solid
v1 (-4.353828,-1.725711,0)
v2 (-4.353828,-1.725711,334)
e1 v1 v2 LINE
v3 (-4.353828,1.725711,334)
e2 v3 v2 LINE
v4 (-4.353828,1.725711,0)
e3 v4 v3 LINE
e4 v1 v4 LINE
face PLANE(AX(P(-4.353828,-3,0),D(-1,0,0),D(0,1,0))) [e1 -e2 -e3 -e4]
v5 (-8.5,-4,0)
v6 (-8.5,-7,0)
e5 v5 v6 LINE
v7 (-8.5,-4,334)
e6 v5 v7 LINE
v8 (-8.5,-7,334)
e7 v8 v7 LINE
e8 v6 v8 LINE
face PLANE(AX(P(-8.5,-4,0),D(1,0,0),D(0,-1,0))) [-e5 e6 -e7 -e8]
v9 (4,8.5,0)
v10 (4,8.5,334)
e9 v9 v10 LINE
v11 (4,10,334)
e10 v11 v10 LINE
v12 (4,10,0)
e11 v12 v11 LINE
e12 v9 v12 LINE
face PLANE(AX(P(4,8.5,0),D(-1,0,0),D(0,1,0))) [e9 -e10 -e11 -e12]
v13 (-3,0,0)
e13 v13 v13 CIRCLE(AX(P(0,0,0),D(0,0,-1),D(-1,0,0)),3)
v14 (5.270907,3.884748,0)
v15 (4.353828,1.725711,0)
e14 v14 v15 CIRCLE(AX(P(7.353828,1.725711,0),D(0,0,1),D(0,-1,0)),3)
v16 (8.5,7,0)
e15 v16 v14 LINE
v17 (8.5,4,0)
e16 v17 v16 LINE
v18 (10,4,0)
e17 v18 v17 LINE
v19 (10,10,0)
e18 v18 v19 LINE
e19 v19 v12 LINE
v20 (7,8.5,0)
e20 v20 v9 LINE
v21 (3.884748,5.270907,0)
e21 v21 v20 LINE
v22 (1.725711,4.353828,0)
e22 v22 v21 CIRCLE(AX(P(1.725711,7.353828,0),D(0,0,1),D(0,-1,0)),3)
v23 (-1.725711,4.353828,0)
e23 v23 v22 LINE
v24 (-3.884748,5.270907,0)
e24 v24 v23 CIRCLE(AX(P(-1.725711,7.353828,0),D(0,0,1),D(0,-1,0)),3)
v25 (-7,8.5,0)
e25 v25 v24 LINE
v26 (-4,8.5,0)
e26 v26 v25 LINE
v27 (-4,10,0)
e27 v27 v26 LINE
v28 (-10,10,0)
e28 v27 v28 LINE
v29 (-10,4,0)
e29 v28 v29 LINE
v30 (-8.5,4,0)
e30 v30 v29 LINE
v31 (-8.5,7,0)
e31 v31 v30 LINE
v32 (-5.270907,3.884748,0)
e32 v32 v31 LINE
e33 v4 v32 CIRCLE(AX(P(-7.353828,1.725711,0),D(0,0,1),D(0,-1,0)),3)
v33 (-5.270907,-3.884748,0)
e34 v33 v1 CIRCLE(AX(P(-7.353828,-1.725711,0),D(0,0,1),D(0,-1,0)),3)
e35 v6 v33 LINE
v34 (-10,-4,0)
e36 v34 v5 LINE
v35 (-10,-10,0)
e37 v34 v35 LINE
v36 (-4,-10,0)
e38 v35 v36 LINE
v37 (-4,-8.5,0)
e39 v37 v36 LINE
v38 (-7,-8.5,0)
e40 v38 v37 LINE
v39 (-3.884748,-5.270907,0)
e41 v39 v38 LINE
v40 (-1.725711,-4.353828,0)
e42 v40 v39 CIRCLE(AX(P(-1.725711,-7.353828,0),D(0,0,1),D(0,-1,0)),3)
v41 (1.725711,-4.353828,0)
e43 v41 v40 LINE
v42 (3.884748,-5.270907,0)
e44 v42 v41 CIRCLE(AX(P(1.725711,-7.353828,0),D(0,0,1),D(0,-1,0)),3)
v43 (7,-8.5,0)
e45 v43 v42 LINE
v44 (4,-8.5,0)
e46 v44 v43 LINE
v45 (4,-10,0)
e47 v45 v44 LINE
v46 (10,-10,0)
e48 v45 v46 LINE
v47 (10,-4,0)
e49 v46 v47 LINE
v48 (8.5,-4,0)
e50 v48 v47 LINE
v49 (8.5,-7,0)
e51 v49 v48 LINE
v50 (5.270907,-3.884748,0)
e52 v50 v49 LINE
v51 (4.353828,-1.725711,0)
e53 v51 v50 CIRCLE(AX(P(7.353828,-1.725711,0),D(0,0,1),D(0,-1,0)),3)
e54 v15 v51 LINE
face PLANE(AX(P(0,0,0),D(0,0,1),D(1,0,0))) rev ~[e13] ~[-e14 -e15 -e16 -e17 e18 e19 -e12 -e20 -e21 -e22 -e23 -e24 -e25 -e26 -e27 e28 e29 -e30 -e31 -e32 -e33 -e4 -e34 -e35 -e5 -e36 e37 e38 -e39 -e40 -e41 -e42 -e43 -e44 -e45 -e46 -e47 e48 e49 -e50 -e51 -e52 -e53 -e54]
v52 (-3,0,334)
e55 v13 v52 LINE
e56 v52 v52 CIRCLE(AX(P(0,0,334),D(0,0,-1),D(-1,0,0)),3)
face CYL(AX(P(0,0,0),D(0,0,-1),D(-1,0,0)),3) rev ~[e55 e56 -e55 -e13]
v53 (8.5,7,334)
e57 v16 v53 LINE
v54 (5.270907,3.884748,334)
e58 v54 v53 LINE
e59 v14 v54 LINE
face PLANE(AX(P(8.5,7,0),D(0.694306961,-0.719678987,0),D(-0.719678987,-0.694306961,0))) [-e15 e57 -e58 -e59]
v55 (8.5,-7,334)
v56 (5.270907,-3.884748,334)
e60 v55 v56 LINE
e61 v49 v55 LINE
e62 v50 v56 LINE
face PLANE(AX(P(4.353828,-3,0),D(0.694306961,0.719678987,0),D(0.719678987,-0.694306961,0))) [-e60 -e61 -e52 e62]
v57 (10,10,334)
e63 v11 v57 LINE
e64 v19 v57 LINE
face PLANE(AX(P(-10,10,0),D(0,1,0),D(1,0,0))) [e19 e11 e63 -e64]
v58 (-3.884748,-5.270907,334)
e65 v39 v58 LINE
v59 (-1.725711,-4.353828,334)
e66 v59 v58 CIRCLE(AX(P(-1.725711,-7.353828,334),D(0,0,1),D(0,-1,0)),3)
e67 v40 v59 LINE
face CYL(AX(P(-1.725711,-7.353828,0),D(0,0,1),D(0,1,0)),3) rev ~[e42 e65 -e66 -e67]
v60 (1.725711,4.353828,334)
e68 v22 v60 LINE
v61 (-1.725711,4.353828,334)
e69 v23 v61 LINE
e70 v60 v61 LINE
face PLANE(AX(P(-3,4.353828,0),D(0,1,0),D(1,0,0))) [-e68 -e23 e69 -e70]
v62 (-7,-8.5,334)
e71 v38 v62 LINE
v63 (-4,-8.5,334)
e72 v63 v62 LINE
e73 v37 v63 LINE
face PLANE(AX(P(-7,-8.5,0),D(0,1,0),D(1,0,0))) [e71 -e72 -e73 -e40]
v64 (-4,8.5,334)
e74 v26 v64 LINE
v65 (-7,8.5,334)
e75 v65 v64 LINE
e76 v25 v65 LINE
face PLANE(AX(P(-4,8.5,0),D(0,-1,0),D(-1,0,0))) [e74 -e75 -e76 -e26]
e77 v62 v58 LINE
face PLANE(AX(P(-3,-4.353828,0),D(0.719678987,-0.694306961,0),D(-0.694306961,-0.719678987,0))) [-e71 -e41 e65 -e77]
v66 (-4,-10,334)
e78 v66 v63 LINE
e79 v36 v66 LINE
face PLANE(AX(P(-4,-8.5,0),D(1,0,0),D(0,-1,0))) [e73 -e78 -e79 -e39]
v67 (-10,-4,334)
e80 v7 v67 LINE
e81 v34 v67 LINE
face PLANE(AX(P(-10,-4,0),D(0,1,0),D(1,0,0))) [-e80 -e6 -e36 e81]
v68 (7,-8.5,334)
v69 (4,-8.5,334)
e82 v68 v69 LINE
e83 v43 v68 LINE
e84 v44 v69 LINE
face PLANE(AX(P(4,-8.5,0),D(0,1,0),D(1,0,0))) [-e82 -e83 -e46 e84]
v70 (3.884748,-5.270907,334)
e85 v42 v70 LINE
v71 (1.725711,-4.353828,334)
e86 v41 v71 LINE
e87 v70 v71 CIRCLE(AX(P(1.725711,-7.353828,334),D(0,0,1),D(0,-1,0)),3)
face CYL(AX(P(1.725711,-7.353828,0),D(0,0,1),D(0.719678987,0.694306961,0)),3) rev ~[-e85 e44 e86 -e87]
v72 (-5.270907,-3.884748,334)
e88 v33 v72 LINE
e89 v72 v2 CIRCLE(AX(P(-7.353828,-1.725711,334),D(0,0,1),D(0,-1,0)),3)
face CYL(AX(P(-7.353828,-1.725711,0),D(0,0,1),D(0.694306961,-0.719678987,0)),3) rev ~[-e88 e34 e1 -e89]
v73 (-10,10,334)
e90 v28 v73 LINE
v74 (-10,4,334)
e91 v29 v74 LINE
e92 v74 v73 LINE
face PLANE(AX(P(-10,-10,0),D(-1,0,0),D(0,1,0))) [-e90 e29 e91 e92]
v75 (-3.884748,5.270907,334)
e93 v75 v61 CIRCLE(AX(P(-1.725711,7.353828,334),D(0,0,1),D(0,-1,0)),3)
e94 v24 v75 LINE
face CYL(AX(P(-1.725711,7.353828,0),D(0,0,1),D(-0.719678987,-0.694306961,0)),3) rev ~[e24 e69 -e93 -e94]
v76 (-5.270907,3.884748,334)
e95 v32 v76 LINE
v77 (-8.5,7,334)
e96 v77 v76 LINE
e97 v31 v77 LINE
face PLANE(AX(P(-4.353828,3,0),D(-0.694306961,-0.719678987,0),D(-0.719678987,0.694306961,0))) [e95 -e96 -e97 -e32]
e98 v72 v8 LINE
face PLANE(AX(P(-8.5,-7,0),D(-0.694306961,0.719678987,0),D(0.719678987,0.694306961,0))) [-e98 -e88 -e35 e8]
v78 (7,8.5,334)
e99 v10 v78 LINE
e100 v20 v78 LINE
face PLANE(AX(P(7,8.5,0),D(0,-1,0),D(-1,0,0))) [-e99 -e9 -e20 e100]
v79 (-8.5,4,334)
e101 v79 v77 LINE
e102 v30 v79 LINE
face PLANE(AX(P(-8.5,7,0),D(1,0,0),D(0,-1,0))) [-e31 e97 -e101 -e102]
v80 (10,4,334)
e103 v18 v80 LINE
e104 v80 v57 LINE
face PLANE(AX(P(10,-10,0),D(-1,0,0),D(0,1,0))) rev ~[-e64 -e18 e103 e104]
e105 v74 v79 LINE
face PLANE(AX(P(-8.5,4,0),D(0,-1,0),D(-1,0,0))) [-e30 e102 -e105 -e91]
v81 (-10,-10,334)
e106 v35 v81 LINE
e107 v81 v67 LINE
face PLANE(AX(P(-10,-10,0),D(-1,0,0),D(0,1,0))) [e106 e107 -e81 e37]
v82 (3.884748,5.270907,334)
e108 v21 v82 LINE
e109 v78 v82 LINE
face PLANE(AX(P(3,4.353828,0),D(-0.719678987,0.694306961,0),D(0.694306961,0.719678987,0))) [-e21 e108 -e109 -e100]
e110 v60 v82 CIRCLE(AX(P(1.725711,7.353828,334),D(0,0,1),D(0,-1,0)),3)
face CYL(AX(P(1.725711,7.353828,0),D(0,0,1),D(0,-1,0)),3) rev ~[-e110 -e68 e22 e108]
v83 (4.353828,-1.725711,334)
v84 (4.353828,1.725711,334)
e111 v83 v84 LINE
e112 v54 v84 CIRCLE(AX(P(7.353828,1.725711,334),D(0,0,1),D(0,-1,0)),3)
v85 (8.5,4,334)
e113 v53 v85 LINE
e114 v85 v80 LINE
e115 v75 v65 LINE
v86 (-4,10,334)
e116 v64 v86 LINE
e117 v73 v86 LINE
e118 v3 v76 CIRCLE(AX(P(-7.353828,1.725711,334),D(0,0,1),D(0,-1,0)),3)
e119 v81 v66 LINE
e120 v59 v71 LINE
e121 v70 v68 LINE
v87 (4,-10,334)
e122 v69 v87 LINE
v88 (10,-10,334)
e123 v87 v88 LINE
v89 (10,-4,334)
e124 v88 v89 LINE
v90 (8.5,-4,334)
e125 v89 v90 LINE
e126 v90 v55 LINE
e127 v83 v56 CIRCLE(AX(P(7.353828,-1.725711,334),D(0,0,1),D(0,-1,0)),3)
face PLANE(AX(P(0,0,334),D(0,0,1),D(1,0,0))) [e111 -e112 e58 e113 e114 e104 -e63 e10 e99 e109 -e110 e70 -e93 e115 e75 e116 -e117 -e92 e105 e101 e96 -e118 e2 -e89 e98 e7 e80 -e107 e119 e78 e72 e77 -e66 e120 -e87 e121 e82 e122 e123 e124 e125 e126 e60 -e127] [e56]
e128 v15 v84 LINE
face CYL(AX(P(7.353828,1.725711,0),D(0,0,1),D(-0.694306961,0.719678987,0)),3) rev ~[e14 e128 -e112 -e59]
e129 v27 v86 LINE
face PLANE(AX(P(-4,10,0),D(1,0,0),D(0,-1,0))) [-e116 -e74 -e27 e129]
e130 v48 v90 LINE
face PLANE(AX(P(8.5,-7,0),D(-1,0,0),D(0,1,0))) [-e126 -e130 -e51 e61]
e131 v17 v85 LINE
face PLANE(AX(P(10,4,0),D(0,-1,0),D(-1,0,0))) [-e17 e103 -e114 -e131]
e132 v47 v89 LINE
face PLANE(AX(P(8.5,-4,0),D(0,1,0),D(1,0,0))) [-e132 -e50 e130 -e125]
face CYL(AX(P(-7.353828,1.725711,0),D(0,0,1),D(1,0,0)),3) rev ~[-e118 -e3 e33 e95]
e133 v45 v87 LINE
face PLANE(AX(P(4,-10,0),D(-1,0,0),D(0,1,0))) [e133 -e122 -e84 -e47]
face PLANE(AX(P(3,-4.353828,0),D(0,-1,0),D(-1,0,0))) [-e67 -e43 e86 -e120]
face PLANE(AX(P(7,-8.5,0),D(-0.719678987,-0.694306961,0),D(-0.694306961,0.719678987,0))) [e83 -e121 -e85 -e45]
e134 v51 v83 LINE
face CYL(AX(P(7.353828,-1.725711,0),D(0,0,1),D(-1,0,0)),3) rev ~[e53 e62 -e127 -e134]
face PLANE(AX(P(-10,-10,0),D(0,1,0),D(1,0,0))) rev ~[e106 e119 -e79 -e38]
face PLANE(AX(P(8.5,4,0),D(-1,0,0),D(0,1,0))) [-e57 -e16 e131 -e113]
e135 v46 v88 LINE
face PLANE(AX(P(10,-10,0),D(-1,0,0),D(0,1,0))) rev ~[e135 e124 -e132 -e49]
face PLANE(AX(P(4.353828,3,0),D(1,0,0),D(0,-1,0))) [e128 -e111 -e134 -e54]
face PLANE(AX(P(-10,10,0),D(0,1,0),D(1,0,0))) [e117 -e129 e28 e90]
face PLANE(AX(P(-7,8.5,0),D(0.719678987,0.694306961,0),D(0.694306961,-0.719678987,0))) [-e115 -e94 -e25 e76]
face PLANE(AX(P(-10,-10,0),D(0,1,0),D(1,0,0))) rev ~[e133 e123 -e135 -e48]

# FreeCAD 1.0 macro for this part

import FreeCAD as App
import Part
import Sketcher
from FreeCAD import Vector
Q = App.Units.Quantity


def edges_at(feature, points):
    """Names of the edges that pass closest to the given points."""
    edges = feature.Shape.Edges
    near = lambda p: min(range(len(edges)), key=lambda i: edges[i].distToShape(Part.Vertex(*p))[0])
    return sorted({f"Edge{near(p) + 1}" for p in points})

doc = App.newDocument("Part")
body = doc.addObject("PartDesign::Body", "Body")

# Sketch on XY plane
sketch1 = body.newObject("Sketcher::SketchObject", "Sketch")
sketch1.AttachmentSupport = (doc.getObject("XY_Plane"), [""])
sketch1.MapMode = "FlatFace"
sketch1.addGeometry(Part.LineSegment(Vector(-10, 10, 0), Vector(-10, -10, 0)), False)
sketch1.addGeometry(Part.LineSegment(Vector(-10, -10, 0), Vector(10, -10, 0)), False)
sketch1.addGeometry(Part.LineSegment(Vector(10, -10, 0), Vector(10, 10, 0)), False)
sketch1.addGeometry(Part.LineSegment(Vector(10, 10, 0), Vector(-10, 10, 0)), False)
sketch1.addConstraint(Sketcher.Constraint("Coincident", 0, 2, 1, 1))
sketch1.addConstraint(Sketcher.Constraint("Coincident", 1, 2, 2, 1))
sketch1.addConstraint(Sketcher.Constraint("Coincident", 2, 2, 3, 1))
sketch1.addConstraint(Sketcher.Constraint("Coincident", 3, 2, 0, 1))
sketch1.addConstraint(Sketcher.Constraint("Vertical", 0))
sketch1.addConstraint(Sketcher.Constraint("Horizontal", 1))
sketch1.addConstraint(Sketcher.Constraint("Vertical", 2))
sketch1.addConstraint(Sketcher.Constraint("Horizontal", 3))
sketch1.addConstraint(Sketcher.Constraint("Symmetric", 0, 2, 2, 2, -1, 1))
sketch1.addConstraint(Sketcher.Constraint("Equal", 3, 0))
sketch1.addConstraint(Sketcher.Constraint("DistanceX", 1, 1, 1, 2, Q("20 mm")))
pad1 = body.newObject("PartDesign::Pad", "Pad")
pad1.Profile = sketch1
pad1.Length = 334

# Sketch on XY plane
sketch2 = body.newObject("Sketcher::SketchObject", "Sketch001")
sketch2.AttachmentSupport = (doc.getObject("XY_Plane"), [""])
sketch2.MapMode = "FlatFace"
sketch2.addGeometry(Part.Circle(Vector(0, 0, 0), Vector(0, 0, 1), 3), False)
sketch2.addGeometry(Part.LineSegment(Vector(8.5, 4, 0), Vector(10, 4, 0)), False)
sketch2.addGeometry(Part.LineSegment(Vector(10, 4, 0), Vector(10, -4, 0)), False)
sketch2.addGeometry(Part.LineSegment(Vector(10, -4, 0), Vector(8.5, -4, 0)), False)
sketch2.addGeometry(Part.LineSegment(Vector(8.5, -4, 0), Vector(8.5, -7, 0)), False)
sketch2.addGeometry(Part.LineSegment(Vector(8.5, -7, 0), Vector(4.353828, -3, 0)), False)
sketch2.addGeometry(Part.LineSegment(Vector(4.353828, -3, 0), Vector(4.353828, 3, 0)), False)
sketch2.addGeometry(Part.LineSegment(Vector(4.353828, 3, 0), Vector(8.5, 7, 0)), False)
sketch2.addGeometry(Part.LineSegment(Vector(8.5, 7, 0), Vector(8.5, 4, 0)), False)
sketch2.addGeometry(Part.LineSegment(Vector(-4, 8.5, 0), Vector(-4, 10, 0)), False)
sketch2.addGeometry(Part.LineSegment(Vector(-4, 10, 0), Vector(4, 10, 0)), False)
sketch2.addGeometry(Part.LineSegment(Vector(4, 10, 0), Vector(4, 8.5, 0)), False)
sketch2.addGeometry(Part.LineSegment(Vector(4, 8.5, 0), Vector(7, 8.5, 0)), False)
sketch2.addGeometry(Part.LineSegment(Vector(7, 8.5, 0), Vector(3, 4.353828, 0)), False)
sketch2.addGeometry(Part.LineSegment(Vector(3, 4.353828, 0), Vector(-3, 4.353828, 0)), False)
sketch2.addGeometry(Part.LineSegment(Vector(-3, 4.353828, 0), Vector(-7, 8.5, 0)), False)
sketch2.addGeometry(Part.LineSegment(Vector(-7, 8.5, 0), Vector(-4, 8.5, 0)), False)
sketch2.addGeometry(Part.LineSegment(Vector(-8.5, -4, 0), Vector(-10, -4, 0)), False)
sketch2.addGeometry(Part.LineSegment(Vector(-10, -4, 0), Vector(-10, 4, 0)), False)
sketch2.addGeometry(Part.LineSegment(Vector(-10, 4, 0), Vector(-8.5, 4, 0)), False)
sketch2.addGeometry(Part.LineSegment(Vector(-8.5, 4, 0), Vector(-8.5, 7, 0)), False)
sketch2.addGeometry(Part.LineSegment(Vector(-8.5, 7, 0), Vector(-4.353828, 3, 0)), False)
sketch2.addGeometry(Part.LineSegment(Vector(-4.353828, 3, 0), Vector(-4.353828, -3, 0)), False)
sketch2.addGeometry(Part.LineSegment(Vector(-4.353828, -3, 0), Vector(-8.5, -7, 0)), False)
sketch2.addGeometry(Part.LineSegment(Vector(-8.5, -7, 0), Vector(-8.5, -4, 0)), False)
sketch2.addGeometry(Part.LineSegment(Vector(4, -8.5, 0), Vector(4, -10, 0)), False)
sketch2.addGeometry(Part.LineSegment(Vector(4, -10, 0), Vector(-4, -10, 0)), False)
sketch2.addGeometry(Part.LineSegment(Vector(-4, -10, 0), Vector(-4, -8.5, 0)), False)
sketch2.addGeometry(Part.LineSegment(Vector(-4, -8.5, 0), Vector(-7, -8.5, 0)), False)
sketch2.addGeometry(Part.LineSegment(Vector(-7, -8.5, 0), Vector(-3, -4.353828, 0)), False)
sketch2.addGeometry(Part.LineSegment(Vector(-3, -4.353828, 0), Vector(3, -4.353828, 0)), False)
sketch2.addGeometry(Part.LineSegment(Vector(3, -4.353828, 0), Vector(7, -8.5, 0)), False)
sketch2.addGeometry(Part.LineSegment(Vector(7, -8.5, 0), Vector(4, -8.5, 0)), False)
sketch2.addConstraint(Sketcher.Constraint("Coincident", 1, 2, 2, 1))
sketch2.addConstraint(Sketcher.Constraint("Coincident", 2, 2, 3, 1))
sketch2.addConstraint(Sketcher.Constraint("Coincident", 3, 2, 4, 1))
sketch2.addConstraint(Sketcher.Constraint("Coincident", 4, 2, 5, 1))
sketch2.addConstraint(Sketcher.Constraint("Coincident", 5, 2, 6, 1))
sketch2.addConstraint(Sketcher.Constraint("Coincident", 6, 2, 7, 1))
sketch2.addConstraint(Sketcher.Constraint("Coincident", 7, 2, 8, 1))
sketch2.addConstraint(Sketcher.Constraint("Coincident", 8, 2, 1, 1))
sketch2.addConstraint(Sketcher.Constraint("Coincident", 9, 2, 10, 1))
sketch2.addConstraint(Sketcher.Constraint("Coincident", 10, 2, 11, 1))
sketch2.addConstraint(Sketcher.Constraint("Coincident", 11, 2, 12, 1))
sketch2.addConstraint(Sketcher.Constraint("Coincident", 12, 2, 13, 1))
sketch2.addConstraint(Sketcher.Constraint("Coincident", 13, 2, 14, 1))
sketch2.addConstraint(Sketcher.Constraint("Coincident", 14, 2, 15, 1))
sketch2.addConstraint(Sketcher.Constraint("Coincident", 15, 2, 16, 1))
sketch2.addConstraint(Sketcher.Constraint("Coincident", 16, 2, 9, 1))
sketch2.addConstraint(Sketcher.Constraint("Coincident", 17, 2, 18, 1))
sketch2.addConstraint(Sketcher.Constraint("Coincident", 18, 2, 19, 1))
sketch2.addConstraint(Sketcher.Constraint("Coincident", 19, 2, 20, 1))
sketch2.addConstraint(Sketcher.Constraint("Coincident", 20, 2, 21, 1))
sketch2.addConstraint(Sketcher.Constraint("Coincident", 21, 2, 22, 1))
sketch2.addConstraint(Sketcher.Constraint("Coincident", 22, 2, 23, 1))
sketch2.addConstraint(Sketcher.Constraint("Coincident", 23, 2, 24, 1))
sketch2.addConstraint(Sketcher.Constraint("Coincident", 24, 2, 17, 1))
sketch2.addConstraint(Sketcher.Constraint("Coincident", 25, 2, 26, 1))
sketch2.addConstraint(Sketcher.Constraint("Coincident", 26, 2, 27, 1))
sketch2.addConstraint(Sketcher.Constraint("Coincident", 27, 2, 28, 1))
sketch2.addConstraint(Sketcher.Constraint("Coincident", 28, 2, 29, 1))
sketch2.addConstraint(Sketcher.Constraint("Coincident", 29, 2, 30, 1))
sketch2.addConstraint(Sketcher.Constraint("Coincident", 30, 2, 31, 1))
sketch2.addConstraint(Sketcher.Constraint("Coincident", 31, 2, 32, 1))
sketch2.addConstraint(Sketcher.Constraint("Coincident", 32, 2, 25, 1))
sketch2.addConstraint(Sketcher.Constraint("Horizontal", 1))
sketch2.addConstraint(Sketcher.Constraint("Vertical", 2))
sketch2.addConstraint(Sketcher.Constraint("Horizontal", 3))
sketch2.addConstraint(Sketcher.Constraint("Vertical", 4))
sketch2.addConstraint(Sketcher.Constraint("Vertical", 6))
sketch2.addConstraint(Sketcher.Constraint("Vertical", 8))
sketch2.addConstraint(Sketcher.Constraint("Vertical", 9))
sketch2.addConstraint(Sketcher.Constraint("Horizontal", 10))
sketch2.addConstraint(Sketcher.Constraint("Vertical", 11))
sketch2.addConstraint(Sketcher.Constraint("Horizontal", 12))
sketch2.addConstraint(Sketcher.Constraint("Horizontal", 14))
sketch2.addConstraint(Sketcher.Constraint("Horizontal", 16))
sketch2.addConstraint(Sketcher.Constraint("Horizontal", 17))
sketch2.addConstraint(Sketcher.Constraint("Vertical", 18))
sketch2.addConstraint(Sketcher.Constraint("Horizontal", 19))
sketch2.addConstraint(Sketcher.Constraint("Vertical", 20))
sketch2.addConstraint(Sketcher.Constraint("Vertical", 22))
sketch2.addConstraint(Sketcher.Constraint("Vertical", 24))
sketch2.addConstraint(Sketcher.Constraint("Vertical", 25))
sketch2.addConstraint(Sketcher.Constraint("Horizontal", 26))
sketch2.addConstraint(Sketcher.Constraint("Vertical", 27))
sketch2.addConstraint(Sketcher.Constraint("Horizontal", 28))
sketch2.addConstraint(Sketcher.Constraint("Horizontal", 30))
sketch2.addConstraint(Sketcher.Constraint("Horizontal", 32))
sketch2.addConstraint(Sketcher.Constraint("Coincident", 0, 3, -1, 1))
sketch2.addConstraint(Sketcher.Constraint("Symmetric", 1, 2, 17, 2, -1, 1))
sketch2.addConstraint(Sketcher.Constraint("Symmetric", 3, 2, 19, 2, -1, 1))
sketch2.addConstraint(Sketcher.Constraint("Symmetric", 5, 2, 21, 2, -1, 1))
sketch2.addConstraint(Sketcher.Constraint("Symmetric", 7, 2, 23, 2, -1, 1))
sketch2.addConstraint(Sketcher.Constraint("Symmetric", 9, 2, 25, 2, -1, 1))
sketch2.addConstraint(Sketcher.Constraint("Symmetric", 11, 2, 27, 2, -1, 1))
sketch2.addConstraint(Sketcher.Constraint("Symmetric", 13, 2, 29, 2, -1, 1))
sketch2.addConstraint(Sketcher.Constraint("Symmetric", 15, 2, 31, 2, -1, 1))
sketch2.addConstraint(Sketcher.Constraint("Symmetric", 12, 2, 15, 2, -2))
sketch2.addConstraint(Sketcher.Constraint("Symmetric", 8, 2, 19, 2, -2))
sketch2.addConstraint(Sketcher.Constraint("Perpendicular", 5, 13))
sketch2.addConstraint(Sketcher.Constraint("Perpendicular", 7, 15))
sketch2.addConstraint(Sketcher.Constraint("Perpendicular", 13, 21))
sketch2.addConstraint(Sketcher.Constraint("Perpendicular", 15, 23))
sketch2.addConstraint(Sketcher.Constraint("Perpendicular", 21, 29))
sketch2.addConstraint(Sketcher.Constraint("Perpendicular", 23, 31))
sketch2.addConstraint(Sketcher.Constraint("Horizontal", 7, 2, 20, 2))
sketch2.addConstraint(Sketcher.Constraint("Horizontal", 6, 2, 21, 2))
sketch2.addConstraint(Sketcher.Constraint("Vertical", 11, 2, 25, 2))
sketch2.addConstraint(Sketcher.Constraint("Equal", 26, 2))
sketch2.addConstraint(Sketcher.Constraint("Equal", 32, 4))
sketch2.addConstraint(Sketcher.Constraint("Equal", 30, 6))
sketch2.addConstraint(Sketcher.Constraint("Equal", 19, 9))
sketch2.addConstraint(Sketcher.Constraint("Diameter", 0, Q("6 mm")))
sketch2.addConstraint(Sketcher.Constraint("DistanceX", 10, 1, 10, 2, Q("8 mm")))
sketch2.addConstraint(Sketcher.Constraint("DistanceX", 12, 1, 12, 2, Q("3 mm")))
sketch2.addConstraint(Sketcher.Constraint("DistanceX", 14, 2, 14, 1, Q("6 mm")))
sketch2.addConstraint(Sketcher.Constraint("DistanceX", 1, 1, 1, 2, Q("1.5 mm")))
sketch2.addConstraint(Sketcher.Constraint("DistanceX", -1, 1, 1, 2, Q("10 mm")))
sketch2.addConstraint(Sketcher.Constraint("DistanceY", -1, 1, 9, 2, Q("10 mm")))
sketch2.addConstraint(Sketcher.Constraint("Distance", 5, Q("5.761141 mm")))
pocket1 = body.newObject("PartDesign::Pocket", "Pocket")
pocket1.Profile = sketch2
pocket1.Type = "ThroughAll"
pocket1.Midplane = True
doc.recompute()

fillet = body.newObject("PartDesign::Fillet", "Fillet")
fillet.Base = (pocket1, edges_at(pocket1, [
    (-3, 4.354, 167),
    (3, 4.354, 167),
    (4.354, 3, 167),
    (4.354, -3, 167),
    (3, -4.354, 167),
    (-3, -4.354, 167),
    (-4.354, -3, 167),
    (-4.354, 3, 167),
]))
fillet.Radius = 3

doc.recompute()
